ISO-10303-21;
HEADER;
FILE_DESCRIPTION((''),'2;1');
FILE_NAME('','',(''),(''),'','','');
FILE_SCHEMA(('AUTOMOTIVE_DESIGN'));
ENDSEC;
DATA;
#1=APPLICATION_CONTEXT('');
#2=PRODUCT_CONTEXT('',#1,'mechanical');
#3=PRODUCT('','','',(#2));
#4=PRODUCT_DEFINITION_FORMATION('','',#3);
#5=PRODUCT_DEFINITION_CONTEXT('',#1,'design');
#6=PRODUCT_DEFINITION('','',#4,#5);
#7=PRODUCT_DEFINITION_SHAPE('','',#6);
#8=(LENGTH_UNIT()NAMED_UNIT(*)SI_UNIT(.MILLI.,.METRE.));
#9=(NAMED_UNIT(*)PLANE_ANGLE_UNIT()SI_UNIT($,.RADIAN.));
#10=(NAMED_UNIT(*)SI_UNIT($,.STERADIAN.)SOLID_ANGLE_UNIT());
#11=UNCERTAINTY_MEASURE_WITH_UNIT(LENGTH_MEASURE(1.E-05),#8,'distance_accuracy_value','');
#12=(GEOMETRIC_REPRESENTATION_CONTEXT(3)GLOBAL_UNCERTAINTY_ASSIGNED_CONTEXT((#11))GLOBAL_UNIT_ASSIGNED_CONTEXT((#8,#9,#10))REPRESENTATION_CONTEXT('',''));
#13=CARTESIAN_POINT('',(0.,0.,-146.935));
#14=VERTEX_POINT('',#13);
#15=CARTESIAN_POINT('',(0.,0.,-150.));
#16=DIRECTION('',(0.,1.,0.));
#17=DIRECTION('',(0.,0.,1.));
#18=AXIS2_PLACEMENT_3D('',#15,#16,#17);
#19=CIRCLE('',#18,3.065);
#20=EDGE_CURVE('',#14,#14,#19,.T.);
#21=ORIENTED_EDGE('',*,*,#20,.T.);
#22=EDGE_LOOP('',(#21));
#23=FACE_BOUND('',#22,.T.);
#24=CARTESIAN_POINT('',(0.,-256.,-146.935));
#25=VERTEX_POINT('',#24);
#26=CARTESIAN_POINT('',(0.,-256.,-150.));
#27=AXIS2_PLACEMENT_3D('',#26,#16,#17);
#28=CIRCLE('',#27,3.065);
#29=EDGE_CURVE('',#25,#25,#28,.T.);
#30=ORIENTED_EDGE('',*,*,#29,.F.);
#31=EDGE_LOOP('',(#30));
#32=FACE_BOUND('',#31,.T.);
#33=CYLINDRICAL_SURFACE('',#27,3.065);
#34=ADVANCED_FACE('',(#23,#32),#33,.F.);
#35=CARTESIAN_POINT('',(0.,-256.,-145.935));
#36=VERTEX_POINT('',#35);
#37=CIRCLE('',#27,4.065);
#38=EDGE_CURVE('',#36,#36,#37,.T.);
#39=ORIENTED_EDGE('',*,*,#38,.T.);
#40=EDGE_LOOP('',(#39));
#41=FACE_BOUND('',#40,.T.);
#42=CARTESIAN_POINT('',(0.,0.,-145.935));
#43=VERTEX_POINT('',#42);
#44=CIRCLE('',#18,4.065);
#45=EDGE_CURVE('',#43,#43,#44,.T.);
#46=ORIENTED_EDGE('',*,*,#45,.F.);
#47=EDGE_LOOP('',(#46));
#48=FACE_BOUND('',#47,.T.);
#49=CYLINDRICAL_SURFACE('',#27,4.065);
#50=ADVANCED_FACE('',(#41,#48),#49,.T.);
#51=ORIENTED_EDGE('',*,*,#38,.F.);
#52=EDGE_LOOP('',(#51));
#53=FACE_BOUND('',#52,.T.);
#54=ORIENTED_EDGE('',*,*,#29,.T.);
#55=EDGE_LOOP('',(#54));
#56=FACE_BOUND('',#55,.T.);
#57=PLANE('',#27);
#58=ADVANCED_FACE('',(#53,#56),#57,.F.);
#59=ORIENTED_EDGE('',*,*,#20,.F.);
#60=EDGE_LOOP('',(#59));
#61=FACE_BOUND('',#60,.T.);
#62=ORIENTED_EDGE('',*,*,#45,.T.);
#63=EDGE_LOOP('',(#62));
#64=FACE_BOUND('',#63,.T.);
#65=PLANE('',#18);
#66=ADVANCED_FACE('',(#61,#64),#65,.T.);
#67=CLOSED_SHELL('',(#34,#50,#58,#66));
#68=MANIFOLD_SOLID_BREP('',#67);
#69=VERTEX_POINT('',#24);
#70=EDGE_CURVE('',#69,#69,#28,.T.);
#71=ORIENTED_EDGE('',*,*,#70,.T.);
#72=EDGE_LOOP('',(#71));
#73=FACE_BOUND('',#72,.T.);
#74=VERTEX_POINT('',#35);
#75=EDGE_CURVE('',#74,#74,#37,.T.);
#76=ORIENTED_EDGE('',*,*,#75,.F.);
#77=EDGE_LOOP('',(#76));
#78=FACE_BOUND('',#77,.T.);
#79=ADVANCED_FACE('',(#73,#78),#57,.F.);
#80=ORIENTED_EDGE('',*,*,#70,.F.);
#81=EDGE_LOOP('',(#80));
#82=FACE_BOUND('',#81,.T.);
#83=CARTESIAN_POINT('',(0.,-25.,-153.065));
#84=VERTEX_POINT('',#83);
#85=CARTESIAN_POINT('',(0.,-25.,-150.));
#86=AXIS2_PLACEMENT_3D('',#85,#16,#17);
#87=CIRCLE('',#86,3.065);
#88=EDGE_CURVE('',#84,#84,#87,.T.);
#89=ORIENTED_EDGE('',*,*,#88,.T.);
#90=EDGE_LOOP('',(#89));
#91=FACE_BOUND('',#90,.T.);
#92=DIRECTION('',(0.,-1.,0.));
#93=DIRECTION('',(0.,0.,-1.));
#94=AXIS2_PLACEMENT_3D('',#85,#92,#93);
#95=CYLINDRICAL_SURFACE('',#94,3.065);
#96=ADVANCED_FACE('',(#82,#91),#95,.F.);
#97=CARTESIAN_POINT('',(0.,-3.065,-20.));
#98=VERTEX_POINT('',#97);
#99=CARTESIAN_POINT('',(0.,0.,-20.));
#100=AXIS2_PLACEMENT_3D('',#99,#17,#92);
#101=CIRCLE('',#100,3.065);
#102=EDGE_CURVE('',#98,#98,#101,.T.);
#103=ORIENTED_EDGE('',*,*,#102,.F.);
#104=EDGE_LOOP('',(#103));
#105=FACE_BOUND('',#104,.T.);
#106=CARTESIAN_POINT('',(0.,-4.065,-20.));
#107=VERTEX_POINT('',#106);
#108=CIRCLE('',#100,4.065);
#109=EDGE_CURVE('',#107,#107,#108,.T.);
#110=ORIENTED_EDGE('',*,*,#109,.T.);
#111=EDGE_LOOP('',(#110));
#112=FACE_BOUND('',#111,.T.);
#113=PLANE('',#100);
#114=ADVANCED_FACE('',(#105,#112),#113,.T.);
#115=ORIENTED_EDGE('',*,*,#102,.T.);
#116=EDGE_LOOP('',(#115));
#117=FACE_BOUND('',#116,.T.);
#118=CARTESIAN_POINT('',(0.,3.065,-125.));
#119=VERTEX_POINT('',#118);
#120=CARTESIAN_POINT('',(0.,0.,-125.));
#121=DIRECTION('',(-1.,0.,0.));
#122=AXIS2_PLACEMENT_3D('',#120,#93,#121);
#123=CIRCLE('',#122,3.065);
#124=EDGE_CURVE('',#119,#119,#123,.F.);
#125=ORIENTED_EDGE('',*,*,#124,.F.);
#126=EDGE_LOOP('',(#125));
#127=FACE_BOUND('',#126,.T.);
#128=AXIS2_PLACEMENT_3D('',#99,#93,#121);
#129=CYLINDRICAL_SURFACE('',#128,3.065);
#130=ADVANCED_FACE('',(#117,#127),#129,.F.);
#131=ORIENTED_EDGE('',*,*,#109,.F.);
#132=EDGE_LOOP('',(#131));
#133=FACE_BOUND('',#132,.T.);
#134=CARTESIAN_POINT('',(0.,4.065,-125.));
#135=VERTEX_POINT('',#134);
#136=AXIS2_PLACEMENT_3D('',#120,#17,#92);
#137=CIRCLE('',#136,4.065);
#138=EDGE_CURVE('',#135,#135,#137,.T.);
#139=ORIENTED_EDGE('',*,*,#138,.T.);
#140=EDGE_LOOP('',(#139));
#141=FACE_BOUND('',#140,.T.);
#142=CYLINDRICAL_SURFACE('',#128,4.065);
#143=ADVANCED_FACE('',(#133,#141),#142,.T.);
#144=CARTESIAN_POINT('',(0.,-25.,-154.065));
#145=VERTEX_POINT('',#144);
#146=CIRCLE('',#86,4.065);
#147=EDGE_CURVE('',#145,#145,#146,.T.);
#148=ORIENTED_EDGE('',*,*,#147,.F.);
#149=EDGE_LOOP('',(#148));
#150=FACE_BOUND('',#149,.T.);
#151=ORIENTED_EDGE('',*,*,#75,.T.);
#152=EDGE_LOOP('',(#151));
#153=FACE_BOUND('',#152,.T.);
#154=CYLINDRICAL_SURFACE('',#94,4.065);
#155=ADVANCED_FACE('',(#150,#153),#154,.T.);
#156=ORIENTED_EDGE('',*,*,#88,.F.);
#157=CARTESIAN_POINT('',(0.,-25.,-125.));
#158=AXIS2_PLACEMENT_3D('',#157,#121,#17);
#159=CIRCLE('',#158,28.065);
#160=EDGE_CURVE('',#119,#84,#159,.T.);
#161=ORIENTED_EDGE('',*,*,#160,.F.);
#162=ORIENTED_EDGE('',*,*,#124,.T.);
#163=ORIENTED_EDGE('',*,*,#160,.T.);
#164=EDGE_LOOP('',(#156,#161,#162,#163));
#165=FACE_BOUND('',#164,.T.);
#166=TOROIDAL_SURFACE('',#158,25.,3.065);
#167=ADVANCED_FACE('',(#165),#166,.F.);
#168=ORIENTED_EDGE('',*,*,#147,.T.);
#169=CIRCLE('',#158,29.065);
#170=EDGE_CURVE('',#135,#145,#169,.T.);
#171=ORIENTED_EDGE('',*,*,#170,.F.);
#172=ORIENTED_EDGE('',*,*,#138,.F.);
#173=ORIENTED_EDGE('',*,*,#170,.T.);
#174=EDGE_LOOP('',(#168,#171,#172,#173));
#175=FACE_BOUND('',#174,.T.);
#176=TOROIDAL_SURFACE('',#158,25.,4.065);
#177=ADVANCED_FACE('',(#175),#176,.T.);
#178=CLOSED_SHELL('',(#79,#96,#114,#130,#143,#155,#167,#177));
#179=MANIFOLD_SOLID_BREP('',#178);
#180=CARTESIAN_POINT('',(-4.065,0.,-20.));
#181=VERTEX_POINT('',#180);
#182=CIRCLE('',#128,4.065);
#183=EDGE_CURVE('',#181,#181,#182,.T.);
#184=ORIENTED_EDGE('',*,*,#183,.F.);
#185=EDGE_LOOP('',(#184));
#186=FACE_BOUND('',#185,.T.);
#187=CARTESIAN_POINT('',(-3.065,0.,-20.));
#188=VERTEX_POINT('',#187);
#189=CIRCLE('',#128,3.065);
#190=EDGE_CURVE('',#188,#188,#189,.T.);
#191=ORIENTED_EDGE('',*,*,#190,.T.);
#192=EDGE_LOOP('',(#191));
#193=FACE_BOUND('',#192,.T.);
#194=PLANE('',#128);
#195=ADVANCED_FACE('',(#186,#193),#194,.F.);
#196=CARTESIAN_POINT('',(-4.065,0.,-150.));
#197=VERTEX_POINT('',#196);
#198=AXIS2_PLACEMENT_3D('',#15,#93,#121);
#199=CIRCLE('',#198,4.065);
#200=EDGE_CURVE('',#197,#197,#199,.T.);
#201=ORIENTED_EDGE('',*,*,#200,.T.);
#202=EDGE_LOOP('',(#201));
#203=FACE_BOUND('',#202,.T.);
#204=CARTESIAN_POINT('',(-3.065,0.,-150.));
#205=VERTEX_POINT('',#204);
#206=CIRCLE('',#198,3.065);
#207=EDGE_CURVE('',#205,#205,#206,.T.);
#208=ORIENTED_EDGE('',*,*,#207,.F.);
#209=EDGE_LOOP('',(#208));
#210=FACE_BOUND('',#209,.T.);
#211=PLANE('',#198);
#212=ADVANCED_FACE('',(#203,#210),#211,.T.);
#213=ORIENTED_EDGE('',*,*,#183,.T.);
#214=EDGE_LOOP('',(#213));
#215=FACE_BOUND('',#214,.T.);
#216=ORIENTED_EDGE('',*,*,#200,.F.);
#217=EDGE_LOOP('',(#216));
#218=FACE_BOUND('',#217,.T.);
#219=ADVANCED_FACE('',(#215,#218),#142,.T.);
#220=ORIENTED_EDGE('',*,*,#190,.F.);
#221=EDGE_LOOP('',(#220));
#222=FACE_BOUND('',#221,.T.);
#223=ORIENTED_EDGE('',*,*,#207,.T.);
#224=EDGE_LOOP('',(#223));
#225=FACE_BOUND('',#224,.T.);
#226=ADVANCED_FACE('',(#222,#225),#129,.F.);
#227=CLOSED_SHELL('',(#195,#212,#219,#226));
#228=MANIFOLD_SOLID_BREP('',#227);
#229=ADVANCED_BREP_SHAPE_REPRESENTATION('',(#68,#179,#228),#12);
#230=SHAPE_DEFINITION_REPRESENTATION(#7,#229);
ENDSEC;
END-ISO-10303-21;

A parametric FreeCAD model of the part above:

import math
import FreeCAD as App
import Part
import Sketcher
Q = App.Units.Quantity

doc = App.newDocument("Part")
body = doc.addObject("PartDesign::Body", "Body")

# Sketch on XY plane
sketch1 = body.newObject("Sketcher::SketchObject", "Sketch")
sketch1.AttachmentSupport = (doc.getObject("XY_Plane"), [""])
sketch1.MapMode = "FlatFace"
sketch1.AttachmentOffset = App.Placement(App.Vector(0, 0, -20), App.Rotation())
sketch1.addGeometry(Part.Circle(App.Vector(0, 0, 0), App.Vector(0, 0, 1), 4.1), False)
sketch1.addGeometry(Part.Circle(App.Vector(0, 0, 0), App.Vector(0, 0, 1), 3.1), False)
sketch1.addConstraint(Sketcher.Constraint("Coincident", 0, 3, -1, 1))
sketch1.addConstraint(Sketcher.Constraint("Coincident", 1, 3, -1, 1))
sketch1.addConstraint(Sketcher.Constraint("Diameter", 0, Q("8.13 mm")))
sketch1.addConstraint(Sketcher.Constraint("Diameter", 1, Q("6.13 mm")))

# Sketch on YZ plane
sketch2 = body.newObject("Sketcher::SketchObject", "Sketch001")
sketch2.AttachmentSupport = (doc.getObject("YZ_Plane"), [""])
sketch2.MapMode = "FlatFace"
sketch2.addGeometry(Part.LineSegment(App.Vector(0, -20, 0), App.Vector(0, -125, 0)), False)
sketch2.addGeometry(Part.ArcOfCircle(Part.Circle(App.Vector(-25, -125, 0), App.Vector(0, 0, 1), 25), math.radians(-90), math.radians(0)), False)
sketch2.addGeometry(Part.LineSegment(App.Vector(-25, -150, 0), App.Vector(-256, -150, 0)), False)
sketch2.addConstraint(Sketcher.Constraint("Tangent", 0, 2, 1, 2))
sketch2.addConstraint(Sketcher.Constraint("Tangent", 1, 1, 2, 1))
sketch2.addConstraint(Sketcher.Constraint("Vertical", 0))
sketch2.addConstraint(Sketcher.Constraint("Horizontal", 2))
sketch2.addConstraint(Sketcher.Constraint("PointOnObject", 0, 1, -2))
sketch2.addConstraint(Sketcher.Constraint("Radius", 1, Q("25 mm")))
sketch2.addConstraint(Sketcher.Constraint("DistanceX", 2, 2, 2, 1, Q("231 mm")))
sketch2.addConstraint(Sketcher.Constraint("DistanceY", 0, 2, 0, 1, Q("105 mm")))
sketch2.addConstraint(Sketcher.Constraint("DistanceY", 1, 3, -1, 1, Q("125 mm")))
doc.recompute()

additivepipe = body.newObject("PartDesign::AdditivePipe", "AdditivePipe")
additivepipe.Profile = sketch1
additivepipe.Spine = (sketch2, ["Edge1", "Edge2", "Edge3"])
body2 = doc.addObject("PartDesign::Body", "Body001")

# Sketch on XY plane
sketch3 = body2.newObject("Sketcher::SketchObject", "Sketch002")
sketch3.AttachmentSupport = (doc.getObject("XY_Plane001"), [""])
sketch3.MapMode = "FlatFace"
sketch3.AttachmentOffset = App.Placement(App.Vector(0, 0, -20), App.Rotation())
sketch3.addGeometry(Part.Circle(App.Vector(0, 0, 0), App.Vector(0, 0, 1), 4.1), False)
sketch3.addGeometry(Part.Circle(App.Vector(0, 0, 0), App.Vector(0, 0, 1), 3.1), False)
sketch3.addConstraint(Sketcher.Constraint("Coincident", 0, 3, -1, 1))
sketch3.addConstraint(Sketcher.Constraint("Coincident", 1, 3, -1, 1))
sketch3.addConstraint(Sketcher.Constraint("Diameter", 0, Q("8.13 mm")))
sketch3.addConstraint(Sketcher.Constraint("Diameter", 1, Q("6.13 mm")))

# Sketch on XZ plane
sketch4 = body2.newObject("Sketcher::SketchObject", "Sketch003")
sketch4.AttachmentSupport = (doc.getObject("XZ_Plane001"), [""])
sketch4.MapMode = "FlatFace"
sketch4.addGeometry(Part.LineSegment(App.Vector(0, -20, 0), App.Vector(0, -150, 0)), False)
sketch4.addConstraint(Sketcher.Constraint("Vertical", 0))
sketch4.addConstraint(Sketcher.Constraint("PointOnObject", 0, 1, -2))
sketch4.addConstraint(Sketcher.Constraint("DistanceY", 0, 2, 0, 1, Q("130 mm")))
sketch4.addConstraint(Sketcher.Constraint("DistanceY", 0, 1, -1, 1, Q("20 mm")))
doc.recompute()

additivepipe2 = body2.newObject("PartDesign::AdditivePipe", "AdditivePipe001")
additivepipe2.Profile = sketch3
additivepipe2.Spine = (sketch4, ["Edge1"])
body3 = doc.addObject("PartDesign::Body", "Body002")

# Sketch on XZ plane
sketch5 = body3.newObject("Sketcher::SketchObject", "Sketch004")
sketch5.AttachmentSupport = (doc.getObject("XZ_Plane002"), [""])
sketch5.MapMode = "FlatFace"
sketch5.AttachmentOffset = App.Placement(App.Vector(0, 0, 256), App.Rotation())
sketch5.addGeometry(Part.Circle(App.Vector(0, -150, 0), App.Vector(0, 0, 1), 4.1), False)
sketch5.addGeometry(Part.Circle(App.Vector(0, -150, 0), App.Vector(0, 0, 1), 3.1), False)
sketch5.addConstraint(Sketcher.Constraint("Coincident", 1, 3, 0, 3))
sketch5.addConstraint(Sketcher.Constraint("PointOnObject", 0, 3, -2))
sketch5.addConstraint(Sketcher.Constraint("Diameter", 0, Q("8.13 mm")))
sketch5.addConstraint(Sketcher.Constraint("Diameter", 1, Q("6.13 mm")))
sketch5.addConstraint(Sketcher.Constraint("DistanceY", 0, 3, -1, 1, Q("150 mm")))

# Sketch on XY plane
sketch6 = body3.newObject("Sketcher::SketchObject", "Sketch005")
sketch6.AttachmentSupport = (doc.getObject("XY_Plane002"), [""])
sketch6.MapMode = "FlatFace"
sketch6.AttachmentOffset = App.Placement(App.Vector(0, 0, -150), App.Rotation())
sketch6.addGeometry(Part.LineSegment(App.Vector(0, -256, 0), App.Vector(0, 0, 0)), False)
sketch6.addConstraint(Sketcher.Constraint("Vertical", 0))
sketch6.addConstraint(Sketcher.Constraint("Coincident", 0, 2, -1, 1))
sketch6.addConstraint(Sketcher.Constraint("DistanceY", 0, 1, 0, 2, Q("256 mm")))
doc.recompute()

additivepipe3 = body3.newObject("PartDesign::AdditivePipe", "AdditivePipe002")
additivepipe3.Profile = sketch5
additivepipe3.Spine = (sketch6, ["Edge1"])

doc.recompute()
